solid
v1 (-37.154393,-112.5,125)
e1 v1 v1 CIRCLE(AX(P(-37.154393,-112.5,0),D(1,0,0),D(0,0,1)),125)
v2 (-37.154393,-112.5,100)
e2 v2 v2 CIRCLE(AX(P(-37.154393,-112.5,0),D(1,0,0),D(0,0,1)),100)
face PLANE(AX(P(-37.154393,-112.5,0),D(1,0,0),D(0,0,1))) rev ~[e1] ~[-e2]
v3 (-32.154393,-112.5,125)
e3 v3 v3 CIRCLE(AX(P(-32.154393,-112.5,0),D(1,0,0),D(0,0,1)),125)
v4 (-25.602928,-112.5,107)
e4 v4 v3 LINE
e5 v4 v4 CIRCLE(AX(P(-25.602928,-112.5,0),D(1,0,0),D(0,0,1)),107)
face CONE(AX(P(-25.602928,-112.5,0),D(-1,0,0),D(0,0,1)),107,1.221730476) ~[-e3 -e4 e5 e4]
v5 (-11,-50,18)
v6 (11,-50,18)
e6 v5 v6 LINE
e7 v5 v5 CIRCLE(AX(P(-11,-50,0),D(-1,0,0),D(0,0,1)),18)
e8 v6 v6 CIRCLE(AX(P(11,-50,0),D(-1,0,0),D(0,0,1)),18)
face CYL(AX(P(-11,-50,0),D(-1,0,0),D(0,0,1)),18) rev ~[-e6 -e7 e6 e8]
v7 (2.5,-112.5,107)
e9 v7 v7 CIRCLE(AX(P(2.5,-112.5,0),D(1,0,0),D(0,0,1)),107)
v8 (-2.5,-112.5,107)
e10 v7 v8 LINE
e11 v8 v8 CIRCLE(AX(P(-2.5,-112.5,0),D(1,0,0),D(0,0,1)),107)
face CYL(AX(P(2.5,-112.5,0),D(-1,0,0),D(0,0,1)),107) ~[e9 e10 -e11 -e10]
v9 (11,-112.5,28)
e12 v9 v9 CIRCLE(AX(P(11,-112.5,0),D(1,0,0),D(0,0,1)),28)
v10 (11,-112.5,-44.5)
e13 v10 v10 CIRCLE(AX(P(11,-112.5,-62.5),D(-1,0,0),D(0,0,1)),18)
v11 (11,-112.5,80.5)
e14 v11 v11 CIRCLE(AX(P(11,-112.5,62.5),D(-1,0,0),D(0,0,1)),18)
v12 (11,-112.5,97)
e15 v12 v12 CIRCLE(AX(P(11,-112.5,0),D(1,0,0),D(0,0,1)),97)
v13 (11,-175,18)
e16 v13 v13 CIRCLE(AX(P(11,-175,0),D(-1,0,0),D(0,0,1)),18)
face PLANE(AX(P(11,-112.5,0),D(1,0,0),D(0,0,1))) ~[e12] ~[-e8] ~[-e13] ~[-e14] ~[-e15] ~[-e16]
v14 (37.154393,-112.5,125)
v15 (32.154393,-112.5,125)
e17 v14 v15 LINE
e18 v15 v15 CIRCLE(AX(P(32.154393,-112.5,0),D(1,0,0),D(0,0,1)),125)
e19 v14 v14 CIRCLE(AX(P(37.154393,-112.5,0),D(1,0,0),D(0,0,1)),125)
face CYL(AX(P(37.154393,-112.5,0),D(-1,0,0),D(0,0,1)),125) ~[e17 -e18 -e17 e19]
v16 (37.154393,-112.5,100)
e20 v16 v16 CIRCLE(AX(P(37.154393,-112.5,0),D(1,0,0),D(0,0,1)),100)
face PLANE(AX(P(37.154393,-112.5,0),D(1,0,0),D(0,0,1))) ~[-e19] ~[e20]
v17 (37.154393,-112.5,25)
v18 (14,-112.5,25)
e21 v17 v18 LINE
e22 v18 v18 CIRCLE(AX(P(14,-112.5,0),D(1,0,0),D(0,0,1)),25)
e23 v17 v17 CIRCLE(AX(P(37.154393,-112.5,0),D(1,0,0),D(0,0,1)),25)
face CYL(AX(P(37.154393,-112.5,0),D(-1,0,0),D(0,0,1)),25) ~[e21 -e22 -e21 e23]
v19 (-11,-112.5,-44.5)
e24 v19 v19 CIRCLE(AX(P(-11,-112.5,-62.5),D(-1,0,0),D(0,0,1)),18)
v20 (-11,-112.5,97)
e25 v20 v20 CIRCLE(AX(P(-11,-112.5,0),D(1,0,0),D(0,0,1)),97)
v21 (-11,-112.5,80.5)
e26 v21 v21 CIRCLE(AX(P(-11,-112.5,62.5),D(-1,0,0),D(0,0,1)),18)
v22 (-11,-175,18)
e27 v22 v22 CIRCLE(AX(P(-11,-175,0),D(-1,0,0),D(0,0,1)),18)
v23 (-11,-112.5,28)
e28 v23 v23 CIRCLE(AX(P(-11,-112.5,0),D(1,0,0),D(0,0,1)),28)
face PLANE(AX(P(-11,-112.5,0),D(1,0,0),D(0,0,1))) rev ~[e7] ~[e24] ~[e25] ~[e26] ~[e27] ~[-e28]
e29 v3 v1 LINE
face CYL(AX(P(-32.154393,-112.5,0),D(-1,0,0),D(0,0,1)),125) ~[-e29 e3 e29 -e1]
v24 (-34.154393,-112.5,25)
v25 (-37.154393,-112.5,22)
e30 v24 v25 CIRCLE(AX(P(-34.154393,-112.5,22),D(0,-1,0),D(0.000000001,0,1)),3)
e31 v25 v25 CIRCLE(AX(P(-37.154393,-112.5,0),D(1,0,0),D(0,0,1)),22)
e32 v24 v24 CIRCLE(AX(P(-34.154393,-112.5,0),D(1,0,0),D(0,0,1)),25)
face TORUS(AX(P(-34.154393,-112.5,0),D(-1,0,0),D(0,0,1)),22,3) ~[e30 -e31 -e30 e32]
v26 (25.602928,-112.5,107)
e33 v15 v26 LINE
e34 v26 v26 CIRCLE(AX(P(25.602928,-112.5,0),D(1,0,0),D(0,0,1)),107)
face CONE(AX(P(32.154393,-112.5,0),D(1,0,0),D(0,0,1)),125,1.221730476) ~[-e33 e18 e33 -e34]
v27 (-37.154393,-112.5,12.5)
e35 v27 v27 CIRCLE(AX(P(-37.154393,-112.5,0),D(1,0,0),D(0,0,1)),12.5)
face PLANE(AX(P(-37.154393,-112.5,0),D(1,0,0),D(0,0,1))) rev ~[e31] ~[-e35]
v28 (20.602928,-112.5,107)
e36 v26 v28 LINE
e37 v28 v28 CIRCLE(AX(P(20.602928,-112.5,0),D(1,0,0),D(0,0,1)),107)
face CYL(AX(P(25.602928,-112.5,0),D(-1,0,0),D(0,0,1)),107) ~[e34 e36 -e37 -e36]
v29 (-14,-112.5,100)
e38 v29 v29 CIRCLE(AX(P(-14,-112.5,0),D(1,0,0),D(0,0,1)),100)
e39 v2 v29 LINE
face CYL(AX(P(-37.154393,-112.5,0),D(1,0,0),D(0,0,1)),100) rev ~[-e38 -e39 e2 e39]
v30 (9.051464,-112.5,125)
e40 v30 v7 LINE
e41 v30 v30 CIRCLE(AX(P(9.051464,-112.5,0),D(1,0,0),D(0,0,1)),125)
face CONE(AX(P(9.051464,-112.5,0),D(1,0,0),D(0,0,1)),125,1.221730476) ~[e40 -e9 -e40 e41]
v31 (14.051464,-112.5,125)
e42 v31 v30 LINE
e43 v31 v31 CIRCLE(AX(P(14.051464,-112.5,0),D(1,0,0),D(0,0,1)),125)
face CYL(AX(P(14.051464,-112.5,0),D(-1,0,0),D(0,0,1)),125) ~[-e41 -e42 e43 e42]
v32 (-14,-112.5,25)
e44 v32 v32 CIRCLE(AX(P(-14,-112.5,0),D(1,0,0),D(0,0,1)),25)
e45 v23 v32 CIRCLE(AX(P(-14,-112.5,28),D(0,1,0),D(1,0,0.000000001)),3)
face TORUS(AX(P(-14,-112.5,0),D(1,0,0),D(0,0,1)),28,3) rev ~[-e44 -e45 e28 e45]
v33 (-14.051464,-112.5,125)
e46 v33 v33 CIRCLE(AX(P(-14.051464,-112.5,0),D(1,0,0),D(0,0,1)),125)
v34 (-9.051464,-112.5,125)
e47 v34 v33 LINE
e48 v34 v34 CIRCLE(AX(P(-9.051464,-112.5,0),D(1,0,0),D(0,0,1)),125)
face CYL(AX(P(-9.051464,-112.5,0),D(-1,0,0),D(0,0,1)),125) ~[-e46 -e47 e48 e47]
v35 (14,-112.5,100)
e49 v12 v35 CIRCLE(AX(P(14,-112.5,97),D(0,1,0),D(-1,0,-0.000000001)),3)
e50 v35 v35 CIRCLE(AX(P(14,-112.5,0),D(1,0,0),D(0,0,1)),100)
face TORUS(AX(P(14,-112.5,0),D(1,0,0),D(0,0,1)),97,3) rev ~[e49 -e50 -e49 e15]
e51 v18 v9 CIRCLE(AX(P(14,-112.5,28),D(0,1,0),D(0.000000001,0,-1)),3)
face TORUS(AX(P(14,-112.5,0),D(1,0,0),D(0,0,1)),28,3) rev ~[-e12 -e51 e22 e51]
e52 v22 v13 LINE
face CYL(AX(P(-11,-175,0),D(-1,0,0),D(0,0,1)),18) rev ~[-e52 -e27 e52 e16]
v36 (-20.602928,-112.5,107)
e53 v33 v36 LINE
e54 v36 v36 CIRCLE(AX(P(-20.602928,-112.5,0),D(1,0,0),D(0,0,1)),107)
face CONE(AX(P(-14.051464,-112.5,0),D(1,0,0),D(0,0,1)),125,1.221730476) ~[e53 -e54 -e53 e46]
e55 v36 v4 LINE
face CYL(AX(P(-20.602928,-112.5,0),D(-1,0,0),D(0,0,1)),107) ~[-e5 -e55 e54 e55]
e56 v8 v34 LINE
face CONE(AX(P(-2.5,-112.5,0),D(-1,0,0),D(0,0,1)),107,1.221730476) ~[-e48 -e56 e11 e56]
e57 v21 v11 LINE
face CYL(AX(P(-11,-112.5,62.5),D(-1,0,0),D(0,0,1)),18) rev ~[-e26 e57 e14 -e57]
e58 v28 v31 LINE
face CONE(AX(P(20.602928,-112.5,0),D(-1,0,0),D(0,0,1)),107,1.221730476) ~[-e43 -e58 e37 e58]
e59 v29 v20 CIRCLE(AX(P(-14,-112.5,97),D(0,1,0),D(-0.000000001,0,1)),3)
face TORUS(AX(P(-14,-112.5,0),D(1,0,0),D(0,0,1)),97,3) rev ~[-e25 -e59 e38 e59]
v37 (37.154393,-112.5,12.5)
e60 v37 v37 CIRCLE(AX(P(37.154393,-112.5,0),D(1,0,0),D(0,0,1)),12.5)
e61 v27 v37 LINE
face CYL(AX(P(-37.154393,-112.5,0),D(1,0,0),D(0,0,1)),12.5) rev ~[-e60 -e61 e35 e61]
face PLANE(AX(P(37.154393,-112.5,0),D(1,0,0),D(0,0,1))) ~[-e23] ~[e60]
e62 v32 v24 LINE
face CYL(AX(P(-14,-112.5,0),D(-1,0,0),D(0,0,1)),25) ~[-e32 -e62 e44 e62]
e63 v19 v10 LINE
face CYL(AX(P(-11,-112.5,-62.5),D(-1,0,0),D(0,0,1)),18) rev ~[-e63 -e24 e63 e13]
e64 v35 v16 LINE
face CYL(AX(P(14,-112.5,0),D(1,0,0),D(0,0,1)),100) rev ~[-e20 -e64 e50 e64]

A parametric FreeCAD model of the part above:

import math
import FreeCAD as App
import Part
import Sketcher
from FreeCAD import Vector
Q = App.Units.Quantity

doc = App.newDocument("Part")
body = doc.addObject("PartDesign::Body", "Body")

# Sketch on XY plane
sketch1 = body.newObject("Sketcher::SketchObject", "Sketch")
sketch1.AttachmentSupport = (doc.getObject("XY_Plane"), [""])
sketch1.MapMode = "FlatFace"
sketch1.addGeometry(Part.LineSegment(Vector(-37.2, -12.5, 0), Vector(-14, -12.5, 0)), False)
sketch1.addGeometry(Part.ArcOfCircle(Part.Circle(Vector(-14, -15.5, 0), Vector(0, 0, 1), 3), math.radians(0), math.radians(90)), False)
sketch1.addGeometry(Part.LineSegment(Vector(-11, -15.5, 0), Vector(-11, -84.5, 0)), False)
sketch1.addGeometry(Part.ArcOfCircle(Part.Circle(Vector(-14, -84.5, 0), Vector(0, 0, 1), 3), math.radians(-90), math.radians(0)), False)
sketch1.addGeometry(Part.LineSegment(Vector(-14, -87.5, 0), Vector(-34.2, -87.5, 0)), False)
sketch1.addGeometry(Part.ArcOfCircle(Part.Circle(Vector(-34.2, -90.5, 0), Vector(0, 0, 1), 3), math.radians(90), math.radians(180)), False)
sketch1.addGeometry(Part.LineSegment(Vector(-37.2, -90.5, 0), Vector(-37.2, -100, 0)), False)
sketch1.addGeometry(Part.LineSegment(Vector(-37.2, -100, 0), Vector(37.2, -100, 0)), False)
sketch1.addGeometry(Part.LineSegment(Vector(37.2, -100, 0), Vector(37.2, -87.5, 0)), False)
sketch1.addGeometry(Part.LineSegment(Vector(37.2, -87.5, 0), Vector(14, -87.5, 0)), False)
sketch1.addGeometry(Part.ArcOfCircle(Part.Circle(Vector(14, -84.5, 0), Vector(0, 0, 1), 3), math.radians(180), math.radians(270)), False)
sketch1.addGeometry(Part.LineSegment(Vector(11, -84.5, 0), Vector(11, -15.5, 0)), False)
sketch1.addGeometry(Part.ArcOfCircle(Part.Circle(Vector(14, -15.5, 0), Vector(0, 0, 1), 3), math.radians(90), math.radians(180)), False)
sketch1.addGeometry(Part.LineSegment(Vector(14, -12.5, 0), Vector(37.2, -12.5, 0)), False)
sketch1.addGeometry(Part.LineSegment(Vector(37.2, -12.5, 0), Vector(37.2, 12.5, 0)), False)
sketch1.addGeometry(Part.LineSegment(Vector(37.2, 12.5, 0), Vector(32.2, 12.5, 0)), False)
sketch1.addGeometry(Part.LineSegment(Vector(32.2, 12.5, 0), Vector(25.6, -5.5, 0)), False)
sketch1.addGeometry(Part.LineSegment(Vector(25.6, -5.5, 0), Vector(20.6, -5.5, 0)), False)
sketch1.addGeometry(Part.LineSegment(Vector(20.6, -5.5, 0), Vector(14.1, 12.5, 0)), False)
sketch1.addGeometry(Part.LineSegment(Vector(14.1, 12.5, 0), Vector(9.1, 12.5, 0)), False)
sketch1.addGeometry(Part.LineSegment(Vector(9.1, 12.5, 0), Vector(2.5, -5.5, 0)), False)
sketch1.addGeometry(Part.LineSegment(Vector(2.5, -5.5, 0), Vector(-2.5, -5.5, 0)), False)
sketch1.addGeometry(Part.LineSegment(Vector(-2.5, -5.5, 0), Vector(-9.1, 12.5, 0)), False)
sketch1.addGeometry(Part.LineSegment(Vector(-9.1, 12.5, 0), Vector(-14.1, 12.5, 0)), False)
sketch1.addGeometry(Part.LineSegment(Vector(-14.1, 12.5, 0), Vector(-20.6, -5.5, 0)), False)
sketch1.addGeometry(Part.LineSegment(Vector(-20.6, -5.5, 0), Vector(-25.6, -5.5, 0)), False)
sketch1.addGeometry(Part.LineSegment(Vector(-25.6, -5.5, 0), Vector(-32.2, 12.5, 0)), False)
sketch1.addGeometry(Part.LineSegment(Vector(-32.2, 12.5, 0), Vector(-37.2, 12.5, 0)), False)
sketch1.addGeometry(Part.LineSegment(Vector(-37.2, 12.5, 0), Vector(-37.2, -12.5, 0)), False)
sketch1.addGeometry(Part.LineSegment(Vector(-37.2, -112.5, 0), Vector(37.2, -112.5, 0)), True)  # axis
sketch1.addConstraint(Sketcher.Constraint("Tangent", 0, 2, 1, 2))
sketch1.addConstraint(Sketcher.Constraint("Tangent", 1, 1, 2, 1))
sketch1.addConstraint(Sketcher.Constraint("Tangent", 2, 2, 3, 2))
sketch1.addConstraint(Sketcher.Constraint("Tangent", 3, 1, 4, 1))
sketch1.addConstraint(Sketcher.Constraint("Tangent", 4, 2, 5, 1))
sketch1.addConstraint(Sketcher.Constraint("Tangent", 5, 2, 6, 1))
sketch1.addConstraint(Sketcher.Constraint("Coincident", 6, 2, 7, 1))
sketch1.addConstraint(Sketcher.Constraint("Coincident", 7, 2, 8, 1))
sketch1.addConstraint(Sketcher.Constraint("Coincident", 8, 2, 9, 1))
sketch1.addConstraint(Sketcher.Constraint("Tangent", 9, 2, 10, 2))
sketch1.addConstraint(Sketcher.Constraint("Tangent", 10, 1, 11, 1))
sketch1.addConstraint(Sketcher.Constraint("Tangent", 11, 2, 12, 2))
sketch1.addConstraint(Sketcher.Constraint("Tangent", 12, 1, 13, 1))
sketch1.addConstraint(Sketcher.Constraint("Coincident", 13, 2, 14, 1))
sketch1.addConstraint(Sketcher.Constraint("Coincident", 14, 2, 15, 1))
sketch1.addConstraint(Sketcher.Constraint("Coincident", 15, 2, 16, 1))
sketch1.addConstraint(Sketcher.Constraint("Coincident", 16, 2, 17, 1))
sketch1.addConstraint(Sketcher.Constraint("Coincident", 17, 2, 18, 1))
sketch1.addConstraint(Sketcher.Constraint("Coincident", 18, 2, 19, 1))
sketch1.addConstraint(Sketcher.Constraint("Coincident", 19, 2, 20, 1))
sketch1.addConstraint(Sketcher.Constraint("Coincident", 20, 2, 21, 1))
sketch1.addConstraint(Sketcher.Constraint("Coincident", 21, 2, 22, 1))
sketch1.addConstraint(Sketcher.Constraint("Coincident", 22, 2, 23, 1))
sketch1.addConstraint(Sketcher.Constraint("Coincident", 23, 2, 24, 1))
sketch1.addConstraint(Sketcher.Constraint("Coincident", 24, 2, 25, 1))
sketch1.addConstraint(Sketcher.Constraint("Coincident", 25, 2, 26, 1))
sketch1.addConstraint(Sketcher.Constraint("Coincident", 26, 2, 27, 1))
sketch1.addConstraint(Sketcher.Constraint("Coincident", 27, 2, 28, 1))
sketch1.addConstraint(Sketcher.Constraint("Coincident", 28, 2, 0, 1))
sketch1.addConstraint(Sketcher.Constraint("Horizontal", 0))
sketch1.addConstraint(Sketcher.Constraint("Vertical", 2))
sketch1.addConstraint(Sketcher.Constraint("Horizontal", 4))
sketch1.addConstraint(Sketcher.Constraint("Vertical", 6))
sketch1.addConstraint(Sketcher.Constraint("Horizontal", 7))
sketch1.addConstraint(Sketcher.Constraint("Vertical", 8))
sketch1.addConstraint(Sketcher.Constraint("Horizontal", 9))
sketch1.addConstraint(Sketcher.Constraint("Vertical", 11))
sketch1.addConstraint(Sketcher.Constraint("Horizontal", 13))
sketch1.addConstraint(Sketcher.Constraint("Vertical", 14))
sketch1.addConstraint(Sketcher.Constraint("Horizontal", 15))
sketch1.addConstraint(Sketcher.Constraint("Horizontal", 17))
sketch1.addConstraint(Sketcher.Constraint("Horizontal", 19))
sketch1.addConstraint(Sketcher.Constraint("Horizontal", 21))
sketch1.addConstraint(Sketcher.Constraint("Horizontal", 23))
sketch1.addConstraint(Sketcher.Constraint("Horizontal", 25))
sketch1.addConstraint(Sketcher.Constraint("Horizontal", 27))
sketch1.addConstraint(Sketcher.Constraint("Vertical", 28))
sketch1.addConstraint(Sketcher.Constraint("Horizontal", 29))
sketch1.addConstraint(Sketcher.Constraint("Equal", 1, 3))
sketch1.addConstraint(Sketcher.Constraint("Equal", 3, 5))
sketch1.addConstraint(Sketcher.Constraint("Equal", 5, 10))
sketch1.addConstraint(Sketcher.Constraint("Equal", 10, 12))
sketch1.addConstraint(Sketcher.Constraint("Symmetric", 13, 2, 27, 2, -1, 1))
sketch1.addConstraint(Sketcher.Constraint("Symmetric", 3, 3, 10, 3, -2))
sketch1.addConstraint(Sketcher.Constraint("Symmetric", 19, 2, 22, 2, -2))
sketch1.addConstraint(Sketcher.Constraint("Symmetric", 17, 2, 24, 2, -2))
sketch1.addConstraint(Sketcher.Constraint("Symmetric", 15, 2, 26, 2, -2))
sketch1.addConstraint(Sketcher.Constraint("Parallel", 16, 20))
sketch1.addConstraint(Sketcher.Constraint("Parallel", 18, 22))
sketch1.addConstraint(Sketcher.Constraint("Parallel", 20, 24))
sketch1.addConstraint(Sketcher.Constraint("Parallel", 22, 26))
sketch1.addConstraint(Sketcher.Constraint("Horizontal", 1, 3, 12, 3))
sketch1.addConstraint(Sketcher.Constraint("Horizontal", 15, 2, 18, 2))
sketch1.addConstraint(Sketcher.Constraint("Horizontal", 17, 2, 20, 2))
sketch1.addConstraint(Sketcher.Constraint("Vertical", 8, 2, 13, 2))
sketch1.addConstraint(Sketcher.Constraint("Vertical", 6, 2, 27, 2))
sketch1.addConstraint(Sketcher.Constraint("Vertical", 28, 2, 29, 1))
sketch1.addConstraint(Sketcher.Constraint("Vertical", 14, 2, 29, 2))
sketch1.addConstraint(Sketcher.Constraint("Equal", 15, 17))
sketch1.addConstraint(Sketcher.Constraint("Equal", 17, 19))
sketch1.addConstraint(Sketcher.Constraint("Equal", 19, 21))
sketch1.addConstraint(Sketcher.Constraint("Equal", 21, 23))
sketch1.addConstraint(Sketcher.Constraint("Radius", 1, Q("3 mm")))
sketch1.addConstraint(Sketcher.Constraint("DistanceX", 15, 2, 15, 1, Q("5 mm")))
sketch1.addConstraint(Sketcher.Constraint("DistanceY", 2, 2, 2, 1, Q("69 mm")))
sketch1.addConstraint(Sketcher.Constraint("DistanceY", 14, 1, 14, 2, Q("25 mm")))
sketch1.addConstraint(Sketcher.Constraint("Angle", 16, Q("-110 deg")))
sketch1.addConstraint(Sketcher.Constraint("DistanceY", 6, 2, 6, 1, Q("9.5 mm")))
sketch1.addConstraint(Sketcher.Constraint("DistanceX", 1, 3, -1, 1, Q("14 mm")))
sketch1.addConstraint(Sketcher.Constraint("DistanceY", 13, 2, 16, 2, Q("7 mm")))
sketch1.addConstraint(Sketcher.Constraint("DistanceY", 29, 1, 5, 2, Q("22 mm")))
revolution = body.newObject("PartDesign::Revolution", "Revolution")
revolution.Profile = sketch1
revolution.ReferenceAxis = (sketch1, ["Axis0"])
revolution.Angle = 360

# Sketch on YZ plane
sketch2 = body.newObject("Sketcher::SketchObject", "Sketch001")
sketch2.AttachmentSupport = (doc.getObject("YZ_Plane"), [""])
sketch2.MapMode = "FlatFace"
sketch2.AttachmentOffset = App.Placement(Vector(0, 0, -11), App.Rotation())
sketch2.addGeometry(Part.Circle(Vector(-50, 0, 0), Vector(0, 0, 1), 18), False)
sketch2.addGeometry(Part.Circle(Vector(-112, 62, 0), Vector(0, 0, 1), 18), False)
sketch2.addGeometry(Part.Circle(Vector(-175, 0, 0), Vector(0, 0, 1), 18), False)
sketch2.addGeometry(Part.Circle(Vector(-112, -62, 0), Vector(0, 0, 1), 18), False)
sketch2.addConstraint(Sketcher.Constraint("Equal", 0, 1))
sketch2.addConstraint(Sketcher.Constraint("Equal", 1, 2))
sketch2.addConstraint(Sketcher.Constraint("Equal", 2, 3))
sketch2.addConstraint(Sketcher.Constraint("Symmetric", 1, 3, 3, 3, -1))
sketch2.addConstraint(Sketcher.Constraint("PointOnObject", 0, 3, -1))
sketch2.addConstraint(Sketcher.Constraint("PointOnObject", 2, 3, -1))
sketch2.addConstraint(Sketcher.Constraint("Diameter", 0, Q("36 mm")))
sketch2.addConstraint(Sketcher.Constraint("DistanceX", 0, 3, -1, 1, Q("50 mm")))
sketch2.addConstraint(Sketcher.Constraint("DistanceX", 2, 3, -1, 1, Q("175 mm")))
sketch2.addConstraint(Sketcher.Constraint("DistanceY", 3, 3, 1, 3, Q("125 mm")))
sketch2.addConstraint(Sketcher.Constraint("DistanceX", 1, 3, -1, 1, Q("112.5 mm")))
pocket1 = body.newObject("PartDesign::Pocket", "Pocket")
pocket1.Profile = sketch2
pocket1.Length = 169
pocket1.Reversed = True

doc.recompute()
